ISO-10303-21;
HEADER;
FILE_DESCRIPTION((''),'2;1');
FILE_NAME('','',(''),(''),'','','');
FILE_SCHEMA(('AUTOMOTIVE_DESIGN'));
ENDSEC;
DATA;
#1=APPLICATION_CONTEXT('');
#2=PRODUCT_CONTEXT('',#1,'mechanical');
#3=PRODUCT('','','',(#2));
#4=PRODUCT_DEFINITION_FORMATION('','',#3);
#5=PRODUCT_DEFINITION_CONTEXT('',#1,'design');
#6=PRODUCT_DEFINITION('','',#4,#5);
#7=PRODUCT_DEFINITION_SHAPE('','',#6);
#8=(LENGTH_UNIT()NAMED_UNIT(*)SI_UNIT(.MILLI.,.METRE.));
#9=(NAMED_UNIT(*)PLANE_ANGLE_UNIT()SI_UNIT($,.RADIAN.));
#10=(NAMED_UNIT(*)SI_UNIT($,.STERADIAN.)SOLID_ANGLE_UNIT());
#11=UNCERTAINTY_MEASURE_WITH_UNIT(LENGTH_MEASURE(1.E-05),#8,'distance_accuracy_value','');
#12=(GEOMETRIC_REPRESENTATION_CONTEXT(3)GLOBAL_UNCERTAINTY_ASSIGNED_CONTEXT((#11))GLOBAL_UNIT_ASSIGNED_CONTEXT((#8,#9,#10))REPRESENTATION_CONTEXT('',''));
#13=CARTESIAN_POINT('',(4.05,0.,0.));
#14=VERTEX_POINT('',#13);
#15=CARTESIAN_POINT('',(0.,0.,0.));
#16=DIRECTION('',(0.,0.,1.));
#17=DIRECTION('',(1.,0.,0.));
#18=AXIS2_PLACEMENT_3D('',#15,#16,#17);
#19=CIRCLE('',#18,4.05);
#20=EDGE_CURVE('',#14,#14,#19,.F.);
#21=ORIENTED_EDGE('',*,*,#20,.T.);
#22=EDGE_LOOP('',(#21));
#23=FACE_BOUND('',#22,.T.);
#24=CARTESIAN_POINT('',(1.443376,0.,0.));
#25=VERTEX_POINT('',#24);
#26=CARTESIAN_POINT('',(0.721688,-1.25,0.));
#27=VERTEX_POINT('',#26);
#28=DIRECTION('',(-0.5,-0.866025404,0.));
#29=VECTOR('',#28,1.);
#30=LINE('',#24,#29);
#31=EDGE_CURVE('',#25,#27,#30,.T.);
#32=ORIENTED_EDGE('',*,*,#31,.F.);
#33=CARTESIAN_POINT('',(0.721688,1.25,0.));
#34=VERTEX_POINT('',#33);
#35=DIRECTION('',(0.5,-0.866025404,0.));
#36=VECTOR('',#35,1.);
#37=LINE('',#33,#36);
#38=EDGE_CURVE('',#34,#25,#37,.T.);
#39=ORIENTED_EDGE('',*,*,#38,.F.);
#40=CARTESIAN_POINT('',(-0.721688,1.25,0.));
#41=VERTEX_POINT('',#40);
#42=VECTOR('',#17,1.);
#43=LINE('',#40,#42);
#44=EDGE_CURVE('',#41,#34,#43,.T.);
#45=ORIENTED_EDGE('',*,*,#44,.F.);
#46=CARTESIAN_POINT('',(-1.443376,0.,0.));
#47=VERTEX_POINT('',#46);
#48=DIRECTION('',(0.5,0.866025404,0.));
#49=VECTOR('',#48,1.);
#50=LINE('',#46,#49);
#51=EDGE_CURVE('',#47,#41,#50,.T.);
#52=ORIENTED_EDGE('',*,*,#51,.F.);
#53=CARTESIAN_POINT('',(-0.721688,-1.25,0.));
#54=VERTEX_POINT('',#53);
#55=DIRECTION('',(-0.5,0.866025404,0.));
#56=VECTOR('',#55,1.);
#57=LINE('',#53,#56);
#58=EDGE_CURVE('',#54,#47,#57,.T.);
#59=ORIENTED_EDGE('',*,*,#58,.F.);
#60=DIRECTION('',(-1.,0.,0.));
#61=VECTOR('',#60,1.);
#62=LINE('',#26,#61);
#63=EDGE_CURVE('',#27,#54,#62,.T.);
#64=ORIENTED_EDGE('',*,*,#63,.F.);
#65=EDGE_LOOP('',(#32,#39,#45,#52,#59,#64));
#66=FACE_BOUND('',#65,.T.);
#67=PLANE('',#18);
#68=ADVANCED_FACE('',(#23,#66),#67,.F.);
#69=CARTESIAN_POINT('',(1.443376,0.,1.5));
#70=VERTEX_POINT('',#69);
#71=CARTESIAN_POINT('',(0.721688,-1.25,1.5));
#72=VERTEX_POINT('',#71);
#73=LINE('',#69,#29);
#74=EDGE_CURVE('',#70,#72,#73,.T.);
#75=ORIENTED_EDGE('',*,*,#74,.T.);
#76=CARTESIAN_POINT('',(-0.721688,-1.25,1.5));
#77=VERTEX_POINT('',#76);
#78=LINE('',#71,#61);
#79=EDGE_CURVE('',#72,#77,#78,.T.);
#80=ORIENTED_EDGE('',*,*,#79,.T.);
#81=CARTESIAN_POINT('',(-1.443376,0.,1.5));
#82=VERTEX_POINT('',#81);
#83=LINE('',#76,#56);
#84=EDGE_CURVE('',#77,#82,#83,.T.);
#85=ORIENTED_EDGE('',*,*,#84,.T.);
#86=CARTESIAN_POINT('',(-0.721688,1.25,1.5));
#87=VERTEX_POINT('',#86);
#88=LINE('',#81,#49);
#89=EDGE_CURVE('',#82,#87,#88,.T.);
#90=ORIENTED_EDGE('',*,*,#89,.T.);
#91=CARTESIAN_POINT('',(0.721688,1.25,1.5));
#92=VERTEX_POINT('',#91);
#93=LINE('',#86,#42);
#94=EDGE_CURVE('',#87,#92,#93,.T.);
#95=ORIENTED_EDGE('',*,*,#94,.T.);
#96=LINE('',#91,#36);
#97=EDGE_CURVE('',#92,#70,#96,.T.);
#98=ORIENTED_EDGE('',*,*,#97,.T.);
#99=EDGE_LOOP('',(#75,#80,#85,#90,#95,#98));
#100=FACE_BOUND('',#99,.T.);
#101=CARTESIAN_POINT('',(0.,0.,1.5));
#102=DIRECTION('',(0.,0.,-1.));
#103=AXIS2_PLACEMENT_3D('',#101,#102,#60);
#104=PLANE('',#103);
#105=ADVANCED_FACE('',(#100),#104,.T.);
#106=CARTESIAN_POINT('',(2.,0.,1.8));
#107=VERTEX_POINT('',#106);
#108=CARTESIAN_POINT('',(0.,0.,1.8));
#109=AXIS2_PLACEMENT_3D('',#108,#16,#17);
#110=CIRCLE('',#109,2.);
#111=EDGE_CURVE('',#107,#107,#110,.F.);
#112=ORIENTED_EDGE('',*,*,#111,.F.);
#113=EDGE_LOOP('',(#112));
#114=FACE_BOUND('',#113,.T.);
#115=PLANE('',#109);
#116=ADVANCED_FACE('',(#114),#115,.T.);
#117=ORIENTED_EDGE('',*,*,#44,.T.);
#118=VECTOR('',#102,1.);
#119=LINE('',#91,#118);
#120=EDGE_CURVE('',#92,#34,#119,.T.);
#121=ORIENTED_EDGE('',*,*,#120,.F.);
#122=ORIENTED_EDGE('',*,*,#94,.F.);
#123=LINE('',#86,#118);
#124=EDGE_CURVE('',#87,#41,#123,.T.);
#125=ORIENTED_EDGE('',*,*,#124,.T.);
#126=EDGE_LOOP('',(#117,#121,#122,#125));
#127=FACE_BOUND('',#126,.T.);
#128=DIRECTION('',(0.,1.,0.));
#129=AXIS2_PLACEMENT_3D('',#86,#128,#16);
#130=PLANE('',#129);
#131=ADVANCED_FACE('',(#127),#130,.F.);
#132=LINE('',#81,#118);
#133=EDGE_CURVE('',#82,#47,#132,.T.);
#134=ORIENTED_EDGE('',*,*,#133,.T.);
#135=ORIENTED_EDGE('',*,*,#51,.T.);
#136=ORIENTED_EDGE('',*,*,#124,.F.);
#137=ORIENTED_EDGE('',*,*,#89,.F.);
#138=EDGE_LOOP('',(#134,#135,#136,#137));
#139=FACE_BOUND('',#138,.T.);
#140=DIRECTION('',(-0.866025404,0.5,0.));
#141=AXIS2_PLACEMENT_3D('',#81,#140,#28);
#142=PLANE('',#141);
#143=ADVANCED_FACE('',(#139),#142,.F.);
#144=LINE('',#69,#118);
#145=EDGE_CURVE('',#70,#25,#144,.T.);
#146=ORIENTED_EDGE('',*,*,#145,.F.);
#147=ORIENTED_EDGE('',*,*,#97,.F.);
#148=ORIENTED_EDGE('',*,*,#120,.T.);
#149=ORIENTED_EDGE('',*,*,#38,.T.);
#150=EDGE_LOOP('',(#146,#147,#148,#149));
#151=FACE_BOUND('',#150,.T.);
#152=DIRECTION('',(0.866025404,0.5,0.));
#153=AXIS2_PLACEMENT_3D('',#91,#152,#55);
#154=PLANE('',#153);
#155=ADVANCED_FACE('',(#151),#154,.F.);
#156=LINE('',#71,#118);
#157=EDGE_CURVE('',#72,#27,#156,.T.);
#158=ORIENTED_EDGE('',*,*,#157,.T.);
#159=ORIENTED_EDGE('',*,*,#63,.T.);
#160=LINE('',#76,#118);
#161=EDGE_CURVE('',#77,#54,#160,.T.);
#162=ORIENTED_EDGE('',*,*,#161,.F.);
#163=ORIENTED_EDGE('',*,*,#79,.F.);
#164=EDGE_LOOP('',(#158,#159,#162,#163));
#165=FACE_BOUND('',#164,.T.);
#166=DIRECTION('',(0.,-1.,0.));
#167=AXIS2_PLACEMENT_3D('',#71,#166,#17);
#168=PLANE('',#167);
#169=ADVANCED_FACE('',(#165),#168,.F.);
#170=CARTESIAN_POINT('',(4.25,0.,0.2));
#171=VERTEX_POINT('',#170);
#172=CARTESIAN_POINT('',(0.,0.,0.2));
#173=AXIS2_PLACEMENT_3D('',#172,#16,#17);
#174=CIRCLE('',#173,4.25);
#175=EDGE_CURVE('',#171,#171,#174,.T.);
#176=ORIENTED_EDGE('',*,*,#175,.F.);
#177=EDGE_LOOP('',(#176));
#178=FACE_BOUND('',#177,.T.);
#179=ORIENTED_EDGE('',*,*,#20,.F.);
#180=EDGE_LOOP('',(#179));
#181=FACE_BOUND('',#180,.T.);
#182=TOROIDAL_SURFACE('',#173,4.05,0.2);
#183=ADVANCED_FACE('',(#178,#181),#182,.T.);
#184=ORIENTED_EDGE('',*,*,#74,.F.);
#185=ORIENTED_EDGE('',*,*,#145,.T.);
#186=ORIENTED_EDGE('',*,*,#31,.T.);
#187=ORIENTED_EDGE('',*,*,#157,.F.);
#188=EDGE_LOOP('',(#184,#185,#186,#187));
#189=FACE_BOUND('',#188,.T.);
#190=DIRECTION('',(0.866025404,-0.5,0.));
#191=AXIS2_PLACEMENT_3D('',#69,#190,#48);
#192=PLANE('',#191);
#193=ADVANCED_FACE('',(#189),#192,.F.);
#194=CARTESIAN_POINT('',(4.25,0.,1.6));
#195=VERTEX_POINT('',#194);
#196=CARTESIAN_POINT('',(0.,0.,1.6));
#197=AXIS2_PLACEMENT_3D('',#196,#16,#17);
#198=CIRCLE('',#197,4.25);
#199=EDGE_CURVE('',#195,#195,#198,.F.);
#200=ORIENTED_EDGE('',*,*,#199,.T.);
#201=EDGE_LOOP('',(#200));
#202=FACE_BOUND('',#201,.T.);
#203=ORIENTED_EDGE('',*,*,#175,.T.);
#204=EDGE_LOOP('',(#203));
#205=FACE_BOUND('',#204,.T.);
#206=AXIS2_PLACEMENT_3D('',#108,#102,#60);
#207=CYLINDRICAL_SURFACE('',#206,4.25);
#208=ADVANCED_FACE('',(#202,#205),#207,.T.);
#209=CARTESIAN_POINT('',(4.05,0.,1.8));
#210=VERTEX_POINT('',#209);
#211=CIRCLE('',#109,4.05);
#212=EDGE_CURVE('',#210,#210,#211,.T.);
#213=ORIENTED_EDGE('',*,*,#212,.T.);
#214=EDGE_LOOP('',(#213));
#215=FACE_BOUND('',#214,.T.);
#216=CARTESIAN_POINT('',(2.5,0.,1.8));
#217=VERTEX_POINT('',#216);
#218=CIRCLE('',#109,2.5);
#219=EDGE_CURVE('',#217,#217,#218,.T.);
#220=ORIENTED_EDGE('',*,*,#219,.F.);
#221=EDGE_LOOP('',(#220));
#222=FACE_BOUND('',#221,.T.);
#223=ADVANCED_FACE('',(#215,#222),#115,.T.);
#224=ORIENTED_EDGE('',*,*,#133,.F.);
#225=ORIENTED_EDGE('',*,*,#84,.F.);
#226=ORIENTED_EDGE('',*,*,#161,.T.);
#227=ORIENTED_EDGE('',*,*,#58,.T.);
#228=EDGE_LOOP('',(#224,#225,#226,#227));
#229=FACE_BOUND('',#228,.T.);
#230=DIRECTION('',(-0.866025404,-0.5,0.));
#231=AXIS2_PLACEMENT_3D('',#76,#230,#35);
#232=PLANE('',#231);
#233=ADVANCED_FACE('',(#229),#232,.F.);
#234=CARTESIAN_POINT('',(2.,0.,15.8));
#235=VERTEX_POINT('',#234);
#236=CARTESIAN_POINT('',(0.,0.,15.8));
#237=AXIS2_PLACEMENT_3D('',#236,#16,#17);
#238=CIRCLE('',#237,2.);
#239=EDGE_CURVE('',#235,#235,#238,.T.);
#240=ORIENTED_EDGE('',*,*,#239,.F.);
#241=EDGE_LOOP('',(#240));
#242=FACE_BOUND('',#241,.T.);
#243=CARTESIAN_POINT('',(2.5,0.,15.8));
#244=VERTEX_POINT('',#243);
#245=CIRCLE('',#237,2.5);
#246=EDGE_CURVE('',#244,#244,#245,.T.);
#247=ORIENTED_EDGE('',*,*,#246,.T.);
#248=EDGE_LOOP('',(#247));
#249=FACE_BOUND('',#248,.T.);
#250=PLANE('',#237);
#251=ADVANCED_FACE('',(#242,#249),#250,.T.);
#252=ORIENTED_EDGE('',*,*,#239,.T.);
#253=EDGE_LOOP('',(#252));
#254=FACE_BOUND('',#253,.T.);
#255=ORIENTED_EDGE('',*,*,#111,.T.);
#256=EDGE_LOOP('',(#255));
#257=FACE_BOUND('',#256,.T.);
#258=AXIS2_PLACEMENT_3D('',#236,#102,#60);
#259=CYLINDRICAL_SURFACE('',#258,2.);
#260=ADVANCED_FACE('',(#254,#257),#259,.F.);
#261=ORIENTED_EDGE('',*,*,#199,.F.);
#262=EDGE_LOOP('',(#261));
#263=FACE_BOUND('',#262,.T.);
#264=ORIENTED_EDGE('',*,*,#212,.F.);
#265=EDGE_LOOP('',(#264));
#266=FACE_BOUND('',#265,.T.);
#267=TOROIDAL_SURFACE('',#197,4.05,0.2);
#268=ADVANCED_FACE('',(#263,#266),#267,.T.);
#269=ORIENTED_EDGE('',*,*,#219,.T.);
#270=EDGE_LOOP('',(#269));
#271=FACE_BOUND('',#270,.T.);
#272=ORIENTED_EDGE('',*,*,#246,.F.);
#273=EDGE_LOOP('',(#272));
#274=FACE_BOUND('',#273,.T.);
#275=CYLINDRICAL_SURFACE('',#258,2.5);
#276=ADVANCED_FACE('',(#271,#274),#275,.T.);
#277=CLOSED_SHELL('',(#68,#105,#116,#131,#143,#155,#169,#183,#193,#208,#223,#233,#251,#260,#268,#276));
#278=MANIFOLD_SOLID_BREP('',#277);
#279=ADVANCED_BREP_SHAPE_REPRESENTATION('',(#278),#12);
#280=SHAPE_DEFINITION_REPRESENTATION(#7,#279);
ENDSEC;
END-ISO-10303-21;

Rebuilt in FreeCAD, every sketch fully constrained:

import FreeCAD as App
import Part
import Sketcher

V = App.Vector
Q = App.Units.Quantity


def edges_at(feature, points):
    """Names of the edges that pass closest to the given points."""
    edges = feature.Shape.Edges
    near = lambda p: min(range(len(edges)), key=lambda i: edges[i].distToShape(Part.Vertex(*p))[0])
    return sorted({f"Edge{near(p) + 1}" for p in points})


def add_polygon(sketch, points):
    """Adds a closed chain of lines whose ends are joined by coincident constraints."""
    first, n = sketch.GeometryCount, len(points)
    for a, b in zip(points, points[1:] + points[:1]):
        sketch.addGeometry(Part.LineSegment(App.Vector(*a, 0), App.Vector(*b, 0)), False)
    for i in range(n):
        sketch.addConstraint(Sketcher.Constraint("Coincident", first + i, 2, first + (i + 1) % n, 1))

doc = App.newDocument("Part")
body = doc.addObject("PartDesign::Body", "Body")

# Sketch on XY plane
sketch1 = body.newObject("Sketcher::SketchObject", "Sketch")
sketch1.AttachmentSupport = (doc.getObject("XY_Plane"), [""])
sketch1.MapMode = "FlatFace"
sketch1.addGeometry(Part.Circle(V(0, 0, 0), V(0, 0, 1), 4.2), False)
sketch1.addConstraint([
    Sketcher.Constraint("Coincident", 0, 3, -1, 1),
    Sketcher.Constraint("Diameter", 0, Q("8.5 mm")),
])
pad1 = body.newObject("PartDesign::Pad", "Pad")
pad1.Profile = sketch1
pad1.Length = 1.8

# Sketch on XY plane
sketch2 = body.newObject("Sketcher::SketchObject", "Sketch001")
sketch2.AttachmentSupport = (doc.getObject("XY_Plane"), [""])
sketch2.MapMode = "FlatFace"
sketch2.AttachmentOffset = App.Placement(V(0, 0, 1.8), App.Rotation())
sketch2.addGeometry([
    Part.Circle(V(0, 0, 0), V(0, 0, 1), 2.5),
    Part.Circle(V(0, 0, 0), V(0, 0, 1), 2),
], False)
sketch2.addConstraint([
    Sketcher.Constraint("Coincident", 0, 3, -1, 1),
    Sketcher.Constraint("Coincident", 1, 3, -1, 1),
    Sketcher.Constraint("Diameter", 0, Q("5 mm")),
    Sketcher.Constraint("Diameter", 1, Q("4 mm")),
])
pad2 = body.newObject("PartDesign::Pad", "Pad001")
pad2.Profile = sketch2
pad2.Length = 14
doc.recompute()

fillet = body.newObject("PartDesign::Fillet", "Fillet")
fillet.Base = (pad2, edges_at(pad2, [(-4.25, 0, 0), (-4.25, 0, 1.8)]))
fillet.Radius = 0.2

# Sketch on XY plane
sketch3 = body.newObject("Sketcher::SketchObject", "Sketch002")
sketch3.AttachmentSupport = (doc.getObject("XY_Plane"), [""])
sketch3.MapMode = "FlatFace"
add_polygon(sketch3, [(-1.4, 0), (-0.7, 1.2), (0.7, 1.2), (1.4, 0), (0.7, -1.2), (-0.7, -1.2)])  # lines 0-5
sketch3.addConstraint([
    Sketcher.Constraint("Horizontal", 1),
    Sketcher.Constraint("Horizontal", 4),
    Sketcher.Constraint("Symmetric", 0, 2, 3, 2, -1, 1),
    Sketcher.Constraint("Symmetric", 2, 2, 5, 2, -1, 1),
    Sketcher.Constraint("PointOnObject", 2, 2, -1),
    Sketcher.Constraint("Parallel", 2, 5),
    Sketcher.Constraint("Vertical", 1, 2, 3, 2),
    Sketcher.Constraint("Angle", 0, Q("60 deg")),
    Sketcher.Constraint("DistanceY", 3, 2, 1, 2, Q("2.5 mm")),
    Sketcher.Constraint("DistanceX", 1, 1, 1, 2, Q("1.443376 mm")),
])
pocket1 = body.newObject("PartDesign::Pocket", "Pocket")
pocket1.Profile = sketch3
pocket1.Length = 1.5
pocket1.Reversed = True

doc.recompute()
